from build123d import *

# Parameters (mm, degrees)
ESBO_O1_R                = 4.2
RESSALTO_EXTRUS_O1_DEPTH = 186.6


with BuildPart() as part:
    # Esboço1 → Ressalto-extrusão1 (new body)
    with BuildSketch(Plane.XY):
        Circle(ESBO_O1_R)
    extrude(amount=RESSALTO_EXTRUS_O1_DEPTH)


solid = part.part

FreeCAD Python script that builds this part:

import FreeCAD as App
import Part
import Sketcher
from FreeCAD import Vector
Q = App.Units.Quantity

doc = App.newDocument("Part")
body = doc.addObject("PartDesign::Body", "Body")

sketch1 = body.newObject("Sketcher::SketchObject", "Sketch")
sketch1.AttachmentSupport = (doc.getObject("XY_Plane"), [""])
sketch1.MapMode = "FlatFace"
sketch1.addGeometry(Part.Circle(Vector(0, 0, 0), Vector(0, 0, 1), 4.2), False)
sketch1.addConstraint(Sketcher.Constraint("Coincident", 0, 3, -1, 1))
sketch1.addConstraint(Sketcher.Constraint("Diameter", 0, Q("8.4 mm")))
pad1 = body.newObject("PartDesign::Pad", "Pad")
pad1.Profile = sketch1
pad1.Length = 186.6

doc.recompute()
